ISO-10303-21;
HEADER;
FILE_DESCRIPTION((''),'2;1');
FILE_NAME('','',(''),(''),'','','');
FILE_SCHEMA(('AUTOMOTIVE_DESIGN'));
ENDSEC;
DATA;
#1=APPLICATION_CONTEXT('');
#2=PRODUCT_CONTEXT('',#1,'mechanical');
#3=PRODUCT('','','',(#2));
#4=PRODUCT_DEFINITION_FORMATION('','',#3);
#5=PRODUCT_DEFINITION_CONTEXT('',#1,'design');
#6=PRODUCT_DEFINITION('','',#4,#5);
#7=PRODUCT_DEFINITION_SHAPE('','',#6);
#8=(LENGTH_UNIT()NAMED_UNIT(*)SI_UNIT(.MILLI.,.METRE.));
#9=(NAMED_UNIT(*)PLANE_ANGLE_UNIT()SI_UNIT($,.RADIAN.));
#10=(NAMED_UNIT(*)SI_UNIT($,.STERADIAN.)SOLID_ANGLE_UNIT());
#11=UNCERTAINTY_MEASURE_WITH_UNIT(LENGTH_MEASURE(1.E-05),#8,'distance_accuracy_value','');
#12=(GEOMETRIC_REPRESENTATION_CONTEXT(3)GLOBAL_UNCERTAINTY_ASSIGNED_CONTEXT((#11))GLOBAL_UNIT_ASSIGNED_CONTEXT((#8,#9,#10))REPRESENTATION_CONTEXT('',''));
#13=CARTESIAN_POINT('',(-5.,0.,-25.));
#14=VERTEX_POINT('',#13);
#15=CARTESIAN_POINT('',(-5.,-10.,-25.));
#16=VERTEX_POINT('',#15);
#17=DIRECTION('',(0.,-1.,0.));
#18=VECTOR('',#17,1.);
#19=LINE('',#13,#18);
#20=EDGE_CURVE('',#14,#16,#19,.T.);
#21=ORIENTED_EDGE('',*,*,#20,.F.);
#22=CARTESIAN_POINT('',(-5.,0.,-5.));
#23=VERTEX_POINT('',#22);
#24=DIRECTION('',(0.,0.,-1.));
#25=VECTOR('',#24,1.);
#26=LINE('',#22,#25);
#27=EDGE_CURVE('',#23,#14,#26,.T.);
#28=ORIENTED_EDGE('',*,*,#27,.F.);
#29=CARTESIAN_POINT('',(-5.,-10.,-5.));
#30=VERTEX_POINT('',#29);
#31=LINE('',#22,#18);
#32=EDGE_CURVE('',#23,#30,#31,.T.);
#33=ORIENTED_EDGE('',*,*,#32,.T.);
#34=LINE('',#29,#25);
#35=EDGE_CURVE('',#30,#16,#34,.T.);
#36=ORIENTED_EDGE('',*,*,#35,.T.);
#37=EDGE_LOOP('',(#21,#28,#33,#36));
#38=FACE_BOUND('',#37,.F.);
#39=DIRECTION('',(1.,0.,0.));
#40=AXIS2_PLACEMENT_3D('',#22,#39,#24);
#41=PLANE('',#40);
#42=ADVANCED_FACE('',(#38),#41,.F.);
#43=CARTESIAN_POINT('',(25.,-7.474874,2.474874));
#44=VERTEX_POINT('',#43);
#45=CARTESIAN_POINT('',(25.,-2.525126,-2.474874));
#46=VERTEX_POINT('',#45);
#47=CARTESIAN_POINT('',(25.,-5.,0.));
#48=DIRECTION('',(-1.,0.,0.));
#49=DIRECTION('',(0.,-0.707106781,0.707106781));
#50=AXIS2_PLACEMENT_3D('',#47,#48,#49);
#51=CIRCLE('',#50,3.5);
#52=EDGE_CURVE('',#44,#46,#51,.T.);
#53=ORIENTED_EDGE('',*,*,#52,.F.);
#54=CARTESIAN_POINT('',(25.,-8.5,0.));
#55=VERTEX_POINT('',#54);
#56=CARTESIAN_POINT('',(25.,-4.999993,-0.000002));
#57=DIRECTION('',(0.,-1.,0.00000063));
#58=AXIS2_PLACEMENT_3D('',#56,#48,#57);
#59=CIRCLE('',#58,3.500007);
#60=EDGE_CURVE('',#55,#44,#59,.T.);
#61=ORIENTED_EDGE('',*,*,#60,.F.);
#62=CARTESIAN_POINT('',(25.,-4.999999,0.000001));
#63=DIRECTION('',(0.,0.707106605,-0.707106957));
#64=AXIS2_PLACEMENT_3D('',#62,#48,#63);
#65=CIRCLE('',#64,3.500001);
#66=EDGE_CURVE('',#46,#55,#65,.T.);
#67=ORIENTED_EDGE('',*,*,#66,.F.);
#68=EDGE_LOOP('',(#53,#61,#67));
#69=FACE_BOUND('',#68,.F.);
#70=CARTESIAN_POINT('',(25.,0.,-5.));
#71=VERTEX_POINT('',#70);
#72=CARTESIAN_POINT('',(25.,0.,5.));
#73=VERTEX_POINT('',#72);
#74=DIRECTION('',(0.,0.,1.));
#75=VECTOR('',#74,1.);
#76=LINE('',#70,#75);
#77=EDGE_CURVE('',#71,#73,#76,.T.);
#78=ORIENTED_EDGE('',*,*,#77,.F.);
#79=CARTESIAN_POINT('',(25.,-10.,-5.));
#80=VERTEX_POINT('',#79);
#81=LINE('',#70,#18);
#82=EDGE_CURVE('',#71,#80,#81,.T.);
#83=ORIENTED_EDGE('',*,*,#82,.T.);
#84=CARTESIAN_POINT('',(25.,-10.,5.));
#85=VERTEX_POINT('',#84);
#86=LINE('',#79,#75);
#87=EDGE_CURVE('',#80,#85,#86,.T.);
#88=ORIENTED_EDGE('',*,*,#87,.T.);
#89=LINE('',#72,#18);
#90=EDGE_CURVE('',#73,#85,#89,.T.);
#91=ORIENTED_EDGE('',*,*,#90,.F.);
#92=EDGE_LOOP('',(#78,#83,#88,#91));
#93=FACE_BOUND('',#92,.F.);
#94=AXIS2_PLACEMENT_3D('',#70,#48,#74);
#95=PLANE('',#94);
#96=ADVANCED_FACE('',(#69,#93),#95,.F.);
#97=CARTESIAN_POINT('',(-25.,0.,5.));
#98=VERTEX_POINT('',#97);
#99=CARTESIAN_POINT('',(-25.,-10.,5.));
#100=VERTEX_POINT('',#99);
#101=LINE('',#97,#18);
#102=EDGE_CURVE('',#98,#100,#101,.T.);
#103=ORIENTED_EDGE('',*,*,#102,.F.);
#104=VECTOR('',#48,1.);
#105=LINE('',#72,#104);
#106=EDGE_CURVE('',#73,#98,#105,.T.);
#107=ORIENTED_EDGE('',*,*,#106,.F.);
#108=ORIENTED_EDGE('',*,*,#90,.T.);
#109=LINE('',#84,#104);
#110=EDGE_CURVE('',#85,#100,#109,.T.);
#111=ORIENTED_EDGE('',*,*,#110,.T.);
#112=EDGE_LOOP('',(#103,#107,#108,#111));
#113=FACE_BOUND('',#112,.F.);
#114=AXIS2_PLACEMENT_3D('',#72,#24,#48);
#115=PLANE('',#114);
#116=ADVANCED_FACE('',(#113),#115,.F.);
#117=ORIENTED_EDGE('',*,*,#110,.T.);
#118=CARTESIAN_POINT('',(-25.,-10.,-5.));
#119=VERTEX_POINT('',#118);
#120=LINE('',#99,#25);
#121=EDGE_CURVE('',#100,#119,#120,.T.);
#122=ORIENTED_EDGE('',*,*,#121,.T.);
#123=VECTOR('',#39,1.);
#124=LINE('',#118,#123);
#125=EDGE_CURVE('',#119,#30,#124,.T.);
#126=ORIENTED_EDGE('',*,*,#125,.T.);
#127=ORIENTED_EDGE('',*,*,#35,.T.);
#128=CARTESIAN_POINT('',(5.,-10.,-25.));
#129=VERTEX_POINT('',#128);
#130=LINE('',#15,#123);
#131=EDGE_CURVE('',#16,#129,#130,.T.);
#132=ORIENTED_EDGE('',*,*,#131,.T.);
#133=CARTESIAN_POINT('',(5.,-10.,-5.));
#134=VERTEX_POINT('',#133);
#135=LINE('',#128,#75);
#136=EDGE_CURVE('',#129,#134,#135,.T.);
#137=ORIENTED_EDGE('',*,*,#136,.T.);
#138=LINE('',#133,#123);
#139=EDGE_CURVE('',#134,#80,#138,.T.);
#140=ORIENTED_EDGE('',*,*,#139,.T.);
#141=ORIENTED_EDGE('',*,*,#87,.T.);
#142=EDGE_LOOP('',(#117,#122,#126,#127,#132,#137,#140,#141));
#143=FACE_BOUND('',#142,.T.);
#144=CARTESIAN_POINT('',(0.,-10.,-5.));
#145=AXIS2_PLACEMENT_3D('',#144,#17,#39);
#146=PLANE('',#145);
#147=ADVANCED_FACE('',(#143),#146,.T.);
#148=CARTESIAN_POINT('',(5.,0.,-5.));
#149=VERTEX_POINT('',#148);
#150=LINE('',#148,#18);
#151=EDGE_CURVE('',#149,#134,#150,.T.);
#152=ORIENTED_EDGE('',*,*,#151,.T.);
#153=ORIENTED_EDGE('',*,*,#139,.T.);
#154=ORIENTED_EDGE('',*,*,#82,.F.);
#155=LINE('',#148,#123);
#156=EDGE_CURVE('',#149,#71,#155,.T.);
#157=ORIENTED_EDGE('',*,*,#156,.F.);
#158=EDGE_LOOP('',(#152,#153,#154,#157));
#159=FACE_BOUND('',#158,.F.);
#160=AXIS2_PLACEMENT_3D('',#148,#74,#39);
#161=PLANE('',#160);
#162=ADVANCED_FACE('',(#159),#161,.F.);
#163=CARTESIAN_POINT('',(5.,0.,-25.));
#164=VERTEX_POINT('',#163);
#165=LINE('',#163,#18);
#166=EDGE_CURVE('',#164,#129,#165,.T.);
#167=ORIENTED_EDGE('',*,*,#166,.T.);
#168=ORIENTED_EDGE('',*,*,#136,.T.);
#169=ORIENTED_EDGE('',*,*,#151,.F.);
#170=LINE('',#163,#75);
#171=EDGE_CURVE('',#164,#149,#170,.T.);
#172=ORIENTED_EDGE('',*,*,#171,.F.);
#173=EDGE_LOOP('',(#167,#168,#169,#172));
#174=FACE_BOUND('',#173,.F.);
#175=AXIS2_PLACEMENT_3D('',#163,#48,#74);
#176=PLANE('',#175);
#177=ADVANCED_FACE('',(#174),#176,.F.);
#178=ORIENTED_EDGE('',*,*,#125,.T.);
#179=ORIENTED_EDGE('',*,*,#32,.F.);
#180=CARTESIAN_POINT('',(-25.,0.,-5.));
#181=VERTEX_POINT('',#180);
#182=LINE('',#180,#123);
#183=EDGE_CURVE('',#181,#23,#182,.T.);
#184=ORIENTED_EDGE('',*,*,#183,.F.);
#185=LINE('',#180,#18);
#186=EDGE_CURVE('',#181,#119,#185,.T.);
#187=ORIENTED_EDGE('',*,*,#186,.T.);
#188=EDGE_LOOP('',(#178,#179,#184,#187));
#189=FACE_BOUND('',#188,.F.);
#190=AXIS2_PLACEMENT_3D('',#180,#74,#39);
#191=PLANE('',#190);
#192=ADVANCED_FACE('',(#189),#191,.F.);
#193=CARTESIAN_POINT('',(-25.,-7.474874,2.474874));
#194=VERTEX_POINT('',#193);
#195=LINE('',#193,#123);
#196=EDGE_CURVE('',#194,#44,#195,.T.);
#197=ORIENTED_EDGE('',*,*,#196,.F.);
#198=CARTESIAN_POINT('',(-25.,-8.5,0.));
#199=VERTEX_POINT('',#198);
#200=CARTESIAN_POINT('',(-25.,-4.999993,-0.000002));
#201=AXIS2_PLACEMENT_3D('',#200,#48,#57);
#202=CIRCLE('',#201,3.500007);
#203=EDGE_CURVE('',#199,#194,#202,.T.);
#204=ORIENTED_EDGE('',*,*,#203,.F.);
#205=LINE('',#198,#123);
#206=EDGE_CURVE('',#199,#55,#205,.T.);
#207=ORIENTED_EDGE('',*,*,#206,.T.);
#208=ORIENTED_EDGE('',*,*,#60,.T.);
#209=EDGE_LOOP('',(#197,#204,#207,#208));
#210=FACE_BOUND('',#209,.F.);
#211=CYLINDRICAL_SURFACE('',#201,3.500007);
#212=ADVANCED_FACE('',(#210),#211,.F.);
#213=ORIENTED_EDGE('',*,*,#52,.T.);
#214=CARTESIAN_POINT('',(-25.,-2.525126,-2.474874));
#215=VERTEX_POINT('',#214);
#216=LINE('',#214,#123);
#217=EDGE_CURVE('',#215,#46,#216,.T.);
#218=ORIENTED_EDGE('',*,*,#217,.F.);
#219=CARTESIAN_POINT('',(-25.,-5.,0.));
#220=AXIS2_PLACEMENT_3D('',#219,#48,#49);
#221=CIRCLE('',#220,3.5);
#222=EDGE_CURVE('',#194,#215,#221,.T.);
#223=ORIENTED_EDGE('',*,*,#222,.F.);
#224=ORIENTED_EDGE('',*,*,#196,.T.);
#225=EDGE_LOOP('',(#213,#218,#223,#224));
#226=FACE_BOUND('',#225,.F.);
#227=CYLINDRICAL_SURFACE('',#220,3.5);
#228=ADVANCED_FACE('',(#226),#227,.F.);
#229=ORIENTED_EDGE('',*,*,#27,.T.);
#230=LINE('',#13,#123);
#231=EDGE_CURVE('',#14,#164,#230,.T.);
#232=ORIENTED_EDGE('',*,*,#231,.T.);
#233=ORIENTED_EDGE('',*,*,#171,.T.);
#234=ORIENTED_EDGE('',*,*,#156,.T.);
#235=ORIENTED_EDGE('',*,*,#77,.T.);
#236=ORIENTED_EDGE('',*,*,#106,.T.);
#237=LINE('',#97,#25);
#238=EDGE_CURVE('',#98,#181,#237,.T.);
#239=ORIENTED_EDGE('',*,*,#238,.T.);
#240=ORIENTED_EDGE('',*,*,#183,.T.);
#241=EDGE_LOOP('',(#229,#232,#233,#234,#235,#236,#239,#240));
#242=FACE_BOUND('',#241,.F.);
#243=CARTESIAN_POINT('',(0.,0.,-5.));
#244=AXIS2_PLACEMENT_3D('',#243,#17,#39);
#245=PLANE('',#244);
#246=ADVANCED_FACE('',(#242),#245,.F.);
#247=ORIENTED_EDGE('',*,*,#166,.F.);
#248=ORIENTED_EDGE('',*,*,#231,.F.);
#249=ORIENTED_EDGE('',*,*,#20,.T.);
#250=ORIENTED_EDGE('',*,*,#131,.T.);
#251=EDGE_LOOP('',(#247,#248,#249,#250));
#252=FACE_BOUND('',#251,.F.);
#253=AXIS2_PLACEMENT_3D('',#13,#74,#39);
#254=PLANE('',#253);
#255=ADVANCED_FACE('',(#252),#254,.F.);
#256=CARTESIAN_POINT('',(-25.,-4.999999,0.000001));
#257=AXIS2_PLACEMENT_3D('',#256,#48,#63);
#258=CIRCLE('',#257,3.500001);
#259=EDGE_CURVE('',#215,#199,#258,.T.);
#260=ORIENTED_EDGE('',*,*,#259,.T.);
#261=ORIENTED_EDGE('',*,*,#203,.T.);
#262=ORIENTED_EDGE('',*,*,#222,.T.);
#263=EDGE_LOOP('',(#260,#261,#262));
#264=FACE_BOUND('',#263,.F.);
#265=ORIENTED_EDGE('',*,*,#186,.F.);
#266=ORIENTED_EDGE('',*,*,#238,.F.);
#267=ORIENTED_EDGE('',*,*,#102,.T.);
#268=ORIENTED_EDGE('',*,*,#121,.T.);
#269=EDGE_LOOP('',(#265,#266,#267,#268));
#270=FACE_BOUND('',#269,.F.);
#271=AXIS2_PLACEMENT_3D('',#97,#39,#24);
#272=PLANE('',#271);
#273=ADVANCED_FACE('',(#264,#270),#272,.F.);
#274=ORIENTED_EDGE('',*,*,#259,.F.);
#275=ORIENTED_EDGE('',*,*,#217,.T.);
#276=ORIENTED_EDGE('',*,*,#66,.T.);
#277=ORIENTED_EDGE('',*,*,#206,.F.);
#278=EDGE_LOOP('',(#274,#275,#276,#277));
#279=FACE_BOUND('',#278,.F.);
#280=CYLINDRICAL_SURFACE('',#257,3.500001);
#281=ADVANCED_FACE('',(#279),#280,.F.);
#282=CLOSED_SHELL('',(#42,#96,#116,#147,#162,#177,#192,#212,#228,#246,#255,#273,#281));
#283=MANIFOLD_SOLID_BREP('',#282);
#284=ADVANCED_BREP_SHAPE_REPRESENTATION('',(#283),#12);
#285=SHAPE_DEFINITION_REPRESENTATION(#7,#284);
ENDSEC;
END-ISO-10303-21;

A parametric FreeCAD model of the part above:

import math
import FreeCAD as App
import Part
import Sketcher

doc = App.newDocument("Part")
params = doc.addObject("Spreadsheet::Sheet", "Params")
for row, (alias, value) in enumerate([
    ("sketch1_width", "50 mm"),
    ("sketch1_width2", "20 mm"),
    ("pad1_length", "10 mm"),
    ("sketch2_radius", "3.500001 mm"),
], start=1):
    params.set(f"A{row}", alias)
    params.set(f"B{row}", "=" + value)
    params.setAlias(f"B{row}", alias)

body = doc.addObject("PartDesign::Body", "Body")

# Sketch on XZ plane
sketch1 = body.newObject("Sketcher::SketchObject", "Sketch")
sketch1.AttachmentSupport = (doc.getObject("XZ_Plane"), [""])
sketch1.MapMode = "FlatFace"
sketch1.addGeometry([
    Part.LineSegment(App.Vector(25, -5, 0), App.Vector(25, 5, 0)),  # 0
    Part.LineSegment(App.Vector(25, 5, 0), App.Vector(-25, 5, 0)),  # 1
    Part.LineSegment(App.Vector(-25, 5, 0), App.Vector(-25, -5, 0)),  # 2
    Part.LineSegment(App.Vector(-25, -5, 0), App.Vector(-5, -5, 0)),  # 3
    Part.LineSegment(App.Vector(-5, -5, 0), App.Vector(-5, -25, 0)),  # 4
    Part.LineSegment(App.Vector(-5, -25, 0), App.Vector(5, -25, 0)),  # 5
    Part.LineSegment(App.Vector(5, -25, 0), App.Vector(5, -5, 0)),  # 6
    Part.LineSegment(App.Vector(5, -5, 0), App.Vector(25, -5, 0)),  # 7
], False)
sketch1.addConstraint([
    Sketcher.Constraint("Coincident", 0, 2, 1, 1),
    Sketcher.Constraint("Coincident", 1, 2, 2, 1),
    Sketcher.Constraint("Coincident", 2, 2, 3, 1),
    Sketcher.Constraint("Coincident", 3, 2, 4, 1),
    Sketcher.Constraint("Coincident", 4, 2, 5, 1),
    Sketcher.Constraint("Coincident", 5, 2, 6, 1),
    Sketcher.Constraint("Coincident", 6, 2, 7, 1),
    Sketcher.Constraint("Coincident", 7, 2, 0, 1),
    Sketcher.Constraint("Vertical", 0),
    Sketcher.Constraint("Horizontal", 1),
    Sketcher.Constraint("Vertical", 2),
    Sketcher.Constraint("Horizontal", 3),
    Sketcher.Constraint("Vertical", 4),
    Sketcher.Constraint("Horizontal", 5),
    Sketcher.Constraint("Vertical", 6),
    Sketcher.Constraint("Horizontal", 7),
    Sketcher.Constraint("Symmetric", 0, 2, 2, 2, -1, 1),
    Sketcher.Constraint("Symmetric", 3, 2, 6, 2, -2),
    Sketcher.Constraint("Equal", 5, 0),
    Sketcher.Constraint("Equal", 7, 4),
    Sketcher.Constraint("DistanceX", 1, 2, 1, 1, 50.0),
    Sketcher.Constraint("DistanceX", 3, 1, 3, 2, 20.0),
])
sketch1.setExpression("Constraints[20]", "Params.sketch1_width")
sketch1.setExpression("Constraints[21]", "Params.sketch1_width2")
pad1 = body.newObject("PartDesign::Pad", "Pad")
pad1.Profile = sketch1
pad1.setExpression("Length", "Params.pad1_length")

# Sketch on YZ plane
sketch2 = body.newObject("Sketcher::SketchObject", "Sketch001")
sketch2.AttachmentSupport = (doc.getObject("YZ_Plane"), [""])
sketch2.MapMode = "FlatFace"
sketch2.AttachmentOffset = App.Placement(App.Vector(0, 0, -25), App.Rotation())
sketch2.addGeometry([
    Part.ArcOfCircle(Part.Circle(App.Vector(-5, 0, 0), App.Vector(0, 0, 1), 3.5), math.radians(-180), math.radians(-45)),
    Part.ArcOfCircle(Part.Circle(App.Vector(-5, 0, 0), App.Vector(0, 0, 1), 3.5), math.radians(135), math.radians(180)),
    Part.ArcOfCircle(Part.Circle(App.Vector(-5, 0, 0), App.Vector(0, 0, 1), 3.5), math.radians(-45), math.radians(135)),
], False)
sketch2.addConstraint([
    Sketcher.Constraint("Tangent", 0, 1, 1, 2),
    Sketcher.Constraint("Tangent", 1, 1, 2, 2),
    Sketcher.Constraint("Tangent", 2, 1, 0, 2),
    Sketcher.Constraint("PointOnObject", 0, 3, -1),
    Sketcher.Constraint("PointOnObject", 0, 1, -1),
    Sketcher.Constraint("Radius", 0, 3.500001),
    Sketcher.Constraint("DistanceX", 0, 3, -1, 1, 4.999999),
    Sketcher.Constraint("DistanceX", 1, 1, 1, 3, 2.474881),
    Sketcher.Constraint("DistanceY", 2, 1, 1, 3, 2.474872),
])
sketch2.setExpression("Constraints[5]", "Params.sketch2_radius")
pocket1 = body.newObject("PartDesign::Pocket", "Pocket")
pocket1.Profile = sketch2
pocket1.Type = "ThroughAll"
pocket1.Reversed = True

doc.recompute()
